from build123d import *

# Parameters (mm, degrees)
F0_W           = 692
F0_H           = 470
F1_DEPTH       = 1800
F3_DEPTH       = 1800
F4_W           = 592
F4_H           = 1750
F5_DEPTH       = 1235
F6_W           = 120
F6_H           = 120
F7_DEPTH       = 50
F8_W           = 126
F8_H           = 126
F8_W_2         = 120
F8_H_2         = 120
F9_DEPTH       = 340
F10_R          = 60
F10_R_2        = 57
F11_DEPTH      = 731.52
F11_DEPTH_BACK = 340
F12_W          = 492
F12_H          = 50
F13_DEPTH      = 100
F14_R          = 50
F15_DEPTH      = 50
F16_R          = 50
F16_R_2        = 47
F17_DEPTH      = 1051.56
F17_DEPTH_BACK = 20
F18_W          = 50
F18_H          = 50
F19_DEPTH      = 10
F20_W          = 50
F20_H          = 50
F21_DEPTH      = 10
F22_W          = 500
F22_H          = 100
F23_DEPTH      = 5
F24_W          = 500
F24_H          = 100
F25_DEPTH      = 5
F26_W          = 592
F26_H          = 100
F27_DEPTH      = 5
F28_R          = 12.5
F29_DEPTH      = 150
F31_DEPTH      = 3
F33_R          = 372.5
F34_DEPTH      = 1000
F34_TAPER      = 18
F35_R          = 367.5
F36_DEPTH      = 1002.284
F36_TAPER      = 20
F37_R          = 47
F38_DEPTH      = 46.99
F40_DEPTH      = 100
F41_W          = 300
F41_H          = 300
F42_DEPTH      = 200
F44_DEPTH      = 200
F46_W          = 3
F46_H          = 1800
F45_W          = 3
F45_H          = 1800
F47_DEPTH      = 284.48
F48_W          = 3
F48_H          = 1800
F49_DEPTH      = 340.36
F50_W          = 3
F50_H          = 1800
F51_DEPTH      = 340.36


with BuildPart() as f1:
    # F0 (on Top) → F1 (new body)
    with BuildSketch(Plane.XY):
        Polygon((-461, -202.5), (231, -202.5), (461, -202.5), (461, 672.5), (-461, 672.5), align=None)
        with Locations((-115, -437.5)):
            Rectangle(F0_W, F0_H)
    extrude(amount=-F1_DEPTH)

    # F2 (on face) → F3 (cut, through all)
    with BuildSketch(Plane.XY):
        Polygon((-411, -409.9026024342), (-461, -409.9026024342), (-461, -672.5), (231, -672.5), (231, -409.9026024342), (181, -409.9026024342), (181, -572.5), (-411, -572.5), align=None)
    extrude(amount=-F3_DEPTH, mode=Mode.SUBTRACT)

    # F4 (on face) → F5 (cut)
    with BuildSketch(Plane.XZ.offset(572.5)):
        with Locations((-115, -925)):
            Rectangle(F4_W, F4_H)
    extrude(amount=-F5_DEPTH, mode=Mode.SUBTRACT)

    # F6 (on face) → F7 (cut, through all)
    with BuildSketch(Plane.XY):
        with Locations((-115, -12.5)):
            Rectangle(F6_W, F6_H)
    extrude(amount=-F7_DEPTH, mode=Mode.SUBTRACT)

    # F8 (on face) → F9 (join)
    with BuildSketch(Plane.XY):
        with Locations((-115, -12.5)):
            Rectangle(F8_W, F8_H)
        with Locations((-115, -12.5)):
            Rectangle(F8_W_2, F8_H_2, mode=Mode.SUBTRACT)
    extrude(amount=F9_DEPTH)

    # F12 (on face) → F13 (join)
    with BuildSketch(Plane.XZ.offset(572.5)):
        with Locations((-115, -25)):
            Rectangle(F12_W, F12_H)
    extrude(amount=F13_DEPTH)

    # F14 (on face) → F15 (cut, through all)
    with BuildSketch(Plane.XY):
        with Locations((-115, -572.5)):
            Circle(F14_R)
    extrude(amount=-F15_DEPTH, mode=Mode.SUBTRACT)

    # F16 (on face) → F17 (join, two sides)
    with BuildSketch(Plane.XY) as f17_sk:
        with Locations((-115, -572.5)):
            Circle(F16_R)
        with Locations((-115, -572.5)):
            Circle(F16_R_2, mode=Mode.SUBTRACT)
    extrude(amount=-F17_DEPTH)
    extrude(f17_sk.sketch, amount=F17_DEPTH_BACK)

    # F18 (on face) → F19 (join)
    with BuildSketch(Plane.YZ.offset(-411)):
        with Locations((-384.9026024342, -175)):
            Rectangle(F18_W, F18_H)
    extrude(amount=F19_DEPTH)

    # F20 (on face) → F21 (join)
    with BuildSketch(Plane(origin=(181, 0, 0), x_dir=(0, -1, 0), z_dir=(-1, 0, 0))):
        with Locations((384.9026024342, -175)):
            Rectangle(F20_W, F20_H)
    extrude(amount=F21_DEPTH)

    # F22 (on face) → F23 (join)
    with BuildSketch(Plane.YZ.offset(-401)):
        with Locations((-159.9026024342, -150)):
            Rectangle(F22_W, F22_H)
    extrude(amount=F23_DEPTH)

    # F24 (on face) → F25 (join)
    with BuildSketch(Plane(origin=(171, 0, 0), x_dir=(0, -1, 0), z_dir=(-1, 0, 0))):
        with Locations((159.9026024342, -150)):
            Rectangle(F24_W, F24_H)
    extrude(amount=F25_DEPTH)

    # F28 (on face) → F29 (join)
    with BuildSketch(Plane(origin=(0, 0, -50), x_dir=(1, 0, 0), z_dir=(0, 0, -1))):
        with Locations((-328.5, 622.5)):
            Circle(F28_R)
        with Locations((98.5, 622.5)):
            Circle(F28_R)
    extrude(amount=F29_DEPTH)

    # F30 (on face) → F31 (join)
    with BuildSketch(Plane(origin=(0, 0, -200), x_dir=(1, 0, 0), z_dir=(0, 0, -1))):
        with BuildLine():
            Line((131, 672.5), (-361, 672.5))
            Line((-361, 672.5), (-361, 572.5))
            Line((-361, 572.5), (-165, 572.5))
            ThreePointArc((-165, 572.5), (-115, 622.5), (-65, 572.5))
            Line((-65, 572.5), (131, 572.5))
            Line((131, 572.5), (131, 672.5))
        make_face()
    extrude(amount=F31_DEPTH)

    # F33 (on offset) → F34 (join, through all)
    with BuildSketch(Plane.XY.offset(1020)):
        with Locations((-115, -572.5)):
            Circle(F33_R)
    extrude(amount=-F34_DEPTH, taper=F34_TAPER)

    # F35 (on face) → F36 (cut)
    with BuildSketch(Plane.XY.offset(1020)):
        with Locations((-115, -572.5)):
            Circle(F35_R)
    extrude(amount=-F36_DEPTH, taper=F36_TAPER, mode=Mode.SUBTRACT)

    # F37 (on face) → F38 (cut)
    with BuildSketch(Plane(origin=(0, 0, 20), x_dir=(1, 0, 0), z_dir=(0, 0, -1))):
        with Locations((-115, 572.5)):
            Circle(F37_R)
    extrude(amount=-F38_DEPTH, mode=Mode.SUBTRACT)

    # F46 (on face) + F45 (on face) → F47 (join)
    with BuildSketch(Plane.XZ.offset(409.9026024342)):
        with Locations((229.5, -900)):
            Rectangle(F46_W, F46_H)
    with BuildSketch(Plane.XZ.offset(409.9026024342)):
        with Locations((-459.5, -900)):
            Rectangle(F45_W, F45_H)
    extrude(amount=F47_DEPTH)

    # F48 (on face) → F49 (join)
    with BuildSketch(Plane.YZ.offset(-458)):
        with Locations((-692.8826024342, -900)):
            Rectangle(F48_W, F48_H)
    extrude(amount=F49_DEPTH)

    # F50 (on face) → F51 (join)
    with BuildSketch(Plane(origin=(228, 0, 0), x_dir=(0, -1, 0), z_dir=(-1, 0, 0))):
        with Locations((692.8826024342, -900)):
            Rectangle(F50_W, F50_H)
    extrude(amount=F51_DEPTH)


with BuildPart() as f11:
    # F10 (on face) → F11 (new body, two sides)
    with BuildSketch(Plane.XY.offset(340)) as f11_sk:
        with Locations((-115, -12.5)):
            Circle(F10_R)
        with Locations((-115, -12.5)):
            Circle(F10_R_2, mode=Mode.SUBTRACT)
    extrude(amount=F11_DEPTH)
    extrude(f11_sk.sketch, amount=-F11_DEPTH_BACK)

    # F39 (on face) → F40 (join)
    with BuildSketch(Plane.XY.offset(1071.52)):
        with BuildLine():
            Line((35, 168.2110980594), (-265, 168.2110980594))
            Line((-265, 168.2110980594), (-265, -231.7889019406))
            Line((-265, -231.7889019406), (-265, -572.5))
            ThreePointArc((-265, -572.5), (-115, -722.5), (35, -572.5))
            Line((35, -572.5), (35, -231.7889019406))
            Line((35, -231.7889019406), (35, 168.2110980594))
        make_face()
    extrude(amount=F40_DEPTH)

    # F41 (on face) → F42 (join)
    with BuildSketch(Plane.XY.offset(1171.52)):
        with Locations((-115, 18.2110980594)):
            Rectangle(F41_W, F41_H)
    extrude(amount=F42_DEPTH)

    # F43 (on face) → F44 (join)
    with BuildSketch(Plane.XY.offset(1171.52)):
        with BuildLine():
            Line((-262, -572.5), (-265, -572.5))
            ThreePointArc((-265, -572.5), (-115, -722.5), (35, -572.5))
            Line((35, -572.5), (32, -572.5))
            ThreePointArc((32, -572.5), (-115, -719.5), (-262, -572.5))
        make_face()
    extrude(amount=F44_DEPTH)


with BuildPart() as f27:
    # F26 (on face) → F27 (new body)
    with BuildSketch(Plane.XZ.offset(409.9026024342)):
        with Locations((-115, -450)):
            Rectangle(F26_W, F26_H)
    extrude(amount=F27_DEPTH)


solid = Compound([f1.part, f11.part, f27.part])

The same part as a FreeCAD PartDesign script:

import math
import FreeCAD as App
import Part
import Sketcher
Q = App.Units.Quantity

doc = App.newDocument("Part")
body = doc.addObject("PartDesign::Body", "Body")

sketch1 = body.newObject("Sketcher::SketchObject", "Sketch")
sketch1.AttachmentSupport = (doc.getObject("XY_Plane"), [""])
sketch1.MapMode = "FlatFace"
sketch1.addGeometry([
    Part.LineSegment(App.Vector(231, -202, 0), App.Vector(461, -202, 0)),
    Part.LineSegment(App.Vector(461, -202, 0), App.Vector(461, 672, 0)),
    Part.LineSegment(App.Vector(461, 672, 0), App.Vector(-461, 672, 0)),
    Part.LineSegment(App.Vector(-461, 672, 0), App.Vector(-461, -672, 0)),
    Part.LineSegment(App.Vector(-461, -672, 0), App.Vector(231, -672, 0)),
    Part.LineSegment(App.Vector(231, -672, 0), App.Vector(231, -202, 0)),
], False)
sketch1.addConstraint([
    Sketcher.Constraint("Coincident", 0, 2, 1, 1),
    Sketcher.Constraint("Coincident", 1, 2, 2, 1),
    Sketcher.Constraint("Coincident", 2, 2, 3, 1),
    Sketcher.Constraint("Coincident", 3, 2, 4, 1),
    Sketcher.Constraint("Coincident", 4, 2, 5, 1),
    Sketcher.Constraint("Coincident", 5, 2, 0, 1),
    Sketcher.Constraint("Horizontal", 0),
    Sketcher.Constraint("Vertical", 1),
    Sketcher.Constraint("Horizontal", 2),
    Sketcher.Constraint("Vertical", 3),
    Sketcher.Constraint("Horizontal", 4),
    Sketcher.Constraint("Vertical", 5),
    Sketcher.Constraint("Symmetric", 1, 2, 3, 2, -1, 1),
    Sketcher.Constraint("DistanceX", 0, 1, 0, 2, Q("230 mm")),
    Sketcher.Constraint("DistanceX", 2, 2, 2, 1, Q("922 mm")),
    Sketcher.Constraint("DistanceY", 1, 1, 1, 2, Q("875 mm")),
    Sketcher.Constraint("DistanceY", 3, 2, 3, 1, Q("1345 mm")),
])
pad1 = body.newObject("PartDesign::Pad", "Pad")
pad1.Profile = sketch1
pad1.Length = 1800
pad1.Reversed = True

sketch2 = body.newObject("Sketcher::SketchObject", "Sketch001")
sketch2.AttachmentSupport = (doc.getObject("XY_Plane"), [""])
sketch2.MapMode = "FlatFace"
sketch2.addGeometry([
    Part.LineSegment(App.Vector(-411, -410, 0), App.Vector(-461, -410, 0)),
    Part.LineSegment(App.Vector(-461, -410, 0), App.Vector(-461, -672, 0)),
    Part.LineSegment(App.Vector(-461, -672, 0), App.Vector(231, -672, 0)),
    Part.LineSegment(App.Vector(231, -672, 0), App.Vector(231, -410, 0)),
    Part.LineSegment(App.Vector(231, -410, 0), App.Vector(181, -410, 0)),
    Part.LineSegment(App.Vector(181, -410, 0), App.Vector(181, -572, 0)),
    Part.LineSegment(App.Vector(181, -572, 0), App.Vector(-411, -572, 0)),
    Part.LineSegment(App.Vector(-411, -572, 0), App.Vector(-411, -410, 0)),
], False)
sketch2.addConstraint([
    Sketcher.Constraint("Coincident", 0, 2, 1, 1),
    Sketcher.Constraint("Coincident", 1, 2, 2, 1),
    Sketcher.Constraint("Coincident", 2, 2, 3, 1),
    Sketcher.Constraint("Coincident", 3, 2, 4, 1),
    Sketcher.Constraint("Coincident", 4, 2, 5, 1),
    Sketcher.Constraint("Coincident", 5, 2, 6, 1),
    Sketcher.Constraint("Coincident", 6, 2, 7, 1),
    Sketcher.Constraint("Coincident", 7, 2, 0, 1),
    Sketcher.Constraint("Horizontal", 0),
    Sketcher.Constraint("Vertical", 1),
    Sketcher.Constraint("Horizontal", 2),
    Sketcher.Constraint("Vertical", 3),
    Sketcher.Constraint("Horizontal", 4),
    Sketcher.Constraint("Vertical", 5),
    Sketcher.Constraint("Horizontal", 6),
    Sketcher.Constraint("Vertical", 7),
    Sketcher.Constraint("Horizontal", 0, 2, 3, 2),
    Sketcher.Constraint("Equal", 0, 4),
    Sketcher.Constraint("DistanceX", 0, 2, 0, 1, Q("50 mm")),
    Sketcher.Constraint("DistanceX", 2, 1, 2, 2, Q("692 mm")),
    Sketcher.Constraint("DistanceX", 0, 2, -1, 1, Q("461 mm")),
    Sketcher.Constraint("DistanceY", 2, 2, 5, 2, Q("100 mm")),
    Sketcher.Constraint("DistanceY", 1, 2, -1, 1, Q("672.5 mm")),
    Sketcher.Constraint("DistanceY", 1, 2, 1, 1, Q("262.597398 mm")),
])
pocket1 = body.newObject("PartDesign::Pocket", "Pocket")
pocket1.Profile = sketch2
pocket1.Type = "ThroughAll"

sketch3 = body.newObject("Sketcher::SketchObject", "Sketch002")
sketch3.AttachmentSupport = (doc.getObject("XZ_Plane"), [""])
sketch3.MapMode = "FlatFace"
sketch3.AttachmentOffset = App.Placement(App.Vector(0, 0, 572.5), App.Rotation())
sketch3.addGeometry([
    Part.LineSegment(App.Vector(-411, -50, 0), App.Vector(-411, -1800, 0)),
    Part.LineSegment(App.Vector(-411, -1800, 0), App.Vector(181, -1800, 0)),
    Part.LineSegment(App.Vector(181, -1800, 0), App.Vector(181, -50, 0)),
    Part.LineSegment(App.Vector(181, -50, 0), App.Vector(-411, -50, 0)),
], False)
sketch3.addConstraint([
    Sketcher.Constraint("Coincident", 0, 2, 1, 1),
    Sketcher.Constraint("Coincident", 1, 2, 2, 1),
    Sketcher.Constraint("Coincident", 2, 2, 3, 1),
    Sketcher.Constraint("Coincident", 3, 2, 0, 1),
    Sketcher.Constraint("Vertical", 0),
    Sketcher.Constraint("Horizontal", 1),
    Sketcher.Constraint("Vertical", 2),
    Sketcher.Constraint("Horizontal", 3),
    Sketcher.Constraint("DistanceX", 1, 1, 1, 2, Q("592 mm")),
    Sketcher.Constraint("DistanceY", 0, 2, 0, 1, Q("1750 mm")),
    Sketcher.Constraint("DistanceX", 0, 2, -1, 1, Q("411 mm")),
    Sketcher.Constraint("DistanceY", 0, 2, -1, 1, Q("1800 mm")),
])
pocket2 = body.newObject("PartDesign::Pocket", "Pocket001")
pocket2.Profile = sketch3
pocket2.Length = 1235

sketch4 = body.newObject("Sketcher::SketchObject", "Sketch003")
sketch4.AttachmentSupport = (doc.getObject("XY_Plane"), [""])
sketch4.MapMode = "FlatFace"
sketch4.addGeometry([
    Part.LineSegment(App.Vector(-175, 48, 0), App.Vector(-175, -72, 0)),
    Part.LineSegment(App.Vector(-175, -72, 0), App.Vector(-55, -72, 0)),
    Part.LineSegment(App.Vector(-55, -72, 0), App.Vector(-55, 48, 0)),
    Part.LineSegment(App.Vector(-55, 48, 0), App.Vector(-175, 48, 0)),
], False)
sketch4.addConstraint([
    Sketcher.Constraint("Coincident", 0, 2, 1, 1),
    Sketcher.Constraint("Coincident", 1, 2, 2, 1),
    Sketcher.Constraint("Coincident", 2, 2, 3, 1),
    Sketcher.Constraint("Coincident", 3, 2, 0, 1),
    Sketcher.Constraint("Vertical", 0),
    Sketcher.Constraint("Horizontal", 1),
    Sketcher.Constraint("Vertical", 2),
    Sketcher.Constraint("Horizontal", 3),
    Sketcher.Constraint("Equal", 3, 0),
    Sketcher.Constraint("DistanceX", 1, 1, 1, 2, Q("120 mm")),
    Sketcher.Constraint("DistanceX", 0, 2, -1, 1, Q("175 mm")),
    Sketcher.Constraint("DistanceY", 0, 2, -1, 1, Q("72.5 mm")),
])
pocket3 = body.newObject("PartDesign::Pocket", "Pocket002")
pocket3.Profile = sketch4
pocket3.Type = "ThroughAll"

sketch5 = body.newObject("Sketcher::SketchObject", "Sketch004")
sketch5.AttachmentSupport = (doc.getObject("XY_Plane"), [""])
sketch5.MapMode = "FlatFace"
sketch5.addGeometry([
    Part.LineSegment(App.Vector(-178, 50, 0), App.Vector(-178, -76, 0)),
    Part.LineSegment(App.Vector(-178, -76, 0), App.Vector(-52, -76, 0)),
    Part.LineSegment(App.Vector(-52, -76, 0), App.Vector(-52, 50, 0)),
    Part.LineSegment(App.Vector(-52, 50, 0), App.Vector(-178, 50, 0)),
    Part.LineSegment(App.Vector(-55, -72, 0), App.Vector(-175, -72, 0)),
    Part.LineSegment(App.Vector(-175, -72, 0), App.Vector(-175, 48, 0)),
    Part.LineSegment(App.Vector(-175, 48, 0), App.Vector(-55, 48, 0)),
    Part.LineSegment(App.Vector(-55, 48, 0), App.Vector(-55, -72, 0)),
], False)
sketch5.addConstraint([
    Sketcher.Constraint("Coincident", 0, 2, 1, 1),
    Sketcher.Constraint("Coincident", 1, 2, 2, 1),
    Sketcher.Constraint("Coincident", 2, 2, 3, 1),
    Sketcher.Constraint("Coincident", 3, 2, 0, 1),
    Sketcher.Constraint("Coincident", 4, 2, 5, 1),
    Sketcher.Constraint("Coincident", 5, 2, 6, 1),
    Sketcher.Constraint("Coincident", 6, 2, 7, 1),
    Sketcher.Constraint("Coincident", 7, 2, 4, 1),
    Sketcher.Constraint("Vertical", 0),
    Sketcher.Constraint("Horizontal", 1),
    Sketcher.Constraint("Vertical", 2),
    Sketcher.Constraint("Horizontal", 3),
    Sketcher.Constraint("Horizontal", 4),
    Sketcher.Constraint("Vertical", 5),
    Sketcher.Constraint("Horizontal", 6),
    Sketcher.Constraint("Vertical", 7),
    Sketcher.Constraint("Equal", 3, 0),
    Sketcher.Constraint("Equal", 6, 5),
    Sketcher.Constraint("DistanceX", 1, 1, 1, 2, Q("126 mm")),
    Sketcher.Constraint("DistanceX", 4, 2, 4, 1, Q("120 mm")),
    Sketcher.Constraint("DistanceX", 0, 2, -1, 1, Q("178 mm")),
    Sketcher.Constraint("DistanceX", 4, 2, -1, 1, Q("175 mm")),
    Sketcher.Constraint("DistanceY", 0, 2, 4, 2, Q("3 mm")),
    Sketcher.Constraint("DistanceY", 0, 2, -1, 1, Q("75.5 mm")),
])
pad2 = body.newObject("PartDesign::Pad", "Pad001")
pad2.Profile = sketch5
pad2.Length = 340

sketch6 = body.newObject("Sketcher::SketchObject", "Sketch005")
sketch6.AttachmentSupport = (doc.getObject("XZ_Plane"), [""])
sketch6.MapMode = "FlatFace"
sketch6.AttachmentOffset = App.Placement(App.Vector(0, 0, 572.5), App.Rotation())
sketch6.addGeometry([
    Part.LineSegment(App.Vector(-361, 0, 0), App.Vector(-361, -50, 0)),
    Part.LineSegment(App.Vector(-361, -50, 0), App.Vector(131, -50, 0)),
    Part.LineSegment(App.Vector(131, -50, 0), App.Vector(131, 0, 0)),
    Part.LineSegment(App.Vector(131, 0, 0), App.Vector(-361, 0, 0)),
], False)
sketch6.addConstraint([
    Sketcher.Constraint("Coincident", 0, 2, 1, 1),
    Sketcher.Constraint("Coincident", 1, 2, 2, 1),
    Sketcher.Constraint("Coincident", 2, 2, 3, 1),
    Sketcher.Constraint("Coincident", 3, 2, 0, 1),
    Sketcher.Constraint("Vertical", 0),
    Sketcher.Constraint("Horizontal", 1),
    Sketcher.Constraint("Vertical", 2),
    Sketcher.Constraint("Horizontal", 3),
    Sketcher.Constraint("PointOnObject", 2, 2, -1),
    Sketcher.Constraint("DistanceX", 1, 1, 1, 2, Q("492 mm")),
    Sketcher.Constraint("DistanceY", 0, 2, 0, 1, Q("50 mm")),
    Sketcher.Constraint("DistanceX", 0, 2, -1, 1, Q("361 mm")),
])
pad3 = body.newObject("PartDesign::Pad", "Pad002")
pad3.Profile = sketch6
pad3.Length = 100

sketch7 = body.newObject("Sketcher::SketchObject", "Sketch006")
sketch7.AttachmentSupport = (doc.getObject("XY_Plane"), [""])
sketch7.MapMode = "FlatFace"
sketch7.addGeometry(Part.Circle(App.Vector(-115, -572, 0), App.Vector(0, 0, 1), 50), False)
sketch7.addConstraint([
    Sketcher.Constraint("Diameter", 0, Q("100 mm")),
    Sketcher.Constraint("DistanceX", 0, 3, -1, 1, Q("115 mm")),
    Sketcher.Constraint("DistanceY", 0, 3, -1, 1, Q("572.5 mm")),
])
pocket4 = body.newObject("PartDesign::Pocket", "Pocket003")
pocket4.Profile = sketch7
pocket4.Type = "ThroughAll"

sketch8 = body.newObject("Sketcher::SketchObject", "Sketch007")
sketch8.AttachmentSupport = (doc.getObject("XY_Plane"), [""])
sketch8.MapMode = "FlatFace"
sketch8.addGeometry([
    Part.Circle(App.Vector(-115, -572, 0), App.Vector(0, 0, 1), 50),
    Part.Circle(App.Vector(-115, -572, 0), App.Vector(0, 0, 1), 47),
], False)
sketch8.addConstraint([
    Sketcher.Constraint("Coincident", 1, 3, 0, 3),
    Sketcher.Constraint("Diameter", 0, Q("100 mm")),
    Sketcher.Constraint("Diameter", 1, Q("94 mm")),
    Sketcher.Constraint("DistanceX", 0, 3, -1, 1, Q("115 mm")),
    Sketcher.Constraint("DistanceY", 0, 3, -1, 1, Q("572.5 mm")),
])
pad4 = body.newObject("PartDesign::Pad", "Pad003")
pad4.Profile = sketch8
pad4.Type = "TwoLengths"
pad4.Length = 1051.56
pad4.Length2 = 20
pad4.Reversed = True

sketch9 = body.newObject("Sketcher::SketchObject", "Sketch008")
sketch9.AttachmentSupport = (doc.getObject("YZ_Plane"), [""])
sketch9.MapMode = "FlatFace"
sketch9.AttachmentOffset = App.Placement(App.Vector(0, 0, -411), App.Rotation())
sketch9.addGeometry([
    Part.LineSegment(App.Vector(-410, -150, 0), App.Vector(-410, -200, 0)),
    Part.LineSegment(App.Vector(-410, -200, 0), App.Vector(-360, -200, 0)),
    Part.LineSegment(App.Vector(-360, -200, 0), App.Vector(-360, -150, 0)),
    Part.LineSegment(App.Vector(-360, -150, 0), App.Vector(-410, -150, 0)),
], False)
sketch9.addConstraint([
    Sketcher.Constraint("Coincident", 0, 2, 1, 1),
    Sketcher.Constraint("Coincident", 1, 2, 2, 1),
    Sketcher.Constraint("Coincident", 2, 2, 3, 1),
    Sketcher.Constraint("Coincident", 3, 2, 0, 1),
    Sketcher.Constraint("Vertical", 0),
    Sketcher.Constraint("Horizontal", 1),
    Sketcher.Constraint("Vertical", 2),
    Sketcher.Constraint("Horizontal", 3),
    Sketcher.Constraint("Equal", 3, 0),
    Sketcher.Constraint("DistanceX", 1, 1, 1, 2, Q("50 mm")),
    Sketcher.Constraint("DistanceY", 0, 2, -1, 1, Q("200 mm")),
    Sketcher.Constraint("DistanceX", 0, 2, -1, 1, Q("409.902602 mm")),
])
pad5 = body.newObject("PartDesign::Pad", "Pad004")
pad5.Profile = sketch9
pad5.Length = 10

sketch10 = body.newObject("Sketcher::SketchObject", "Sketch009")
sketch10.AttachmentSupport = (doc.getObject("YZ_Plane"), [""])
sketch10.MapMode = "FlatFace"
sketch10.AttachmentOffset = App.Placement(App.Vector(0, 0, 181), App.Rotation())
sketch10.addGeometry([
    Part.LineSegment(App.Vector(-360, -150, 0), App.Vector(-360, -200, 0)),
    Part.LineSegment(App.Vector(-360, -200, 0), App.Vector(-410, -200, 0)),
    Part.LineSegment(App.Vector(-410, -200, 0), App.Vector(-410, -150, 0)),
    Part.LineSegment(App.Vector(-410, -150, 0), App.Vector(-360, -150, 0)),
], False)
sketch10.addConstraint([
    Sketcher.Constraint("Coincident", 0, 2, 1, 1),
    Sketcher.Constraint("Coincident", 1, 2, 2, 1),
    Sketcher.Constraint("Coincident", 2, 2, 3, 1),
    Sketcher.Constraint("Coincident", 3, 2, 0, 1),
    Sketcher.Constraint("Vertical", 0),
    Sketcher.Constraint("Horizontal", 1),
    Sketcher.Constraint("Vertical", 2),
    Sketcher.Constraint("Horizontal", 3),
    Sketcher.Constraint("Equal", 3, 0),
    Sketcher.Constraint("DistanceX", 1, 2, 1, 1, Q("50 mm")),
    Sketcher.Constraint("DistanceY", 0, 2, -1, 1, Q("200 mm")),
    Sketcher.Constraint("DistanceX", 0, 2, -1, 1, Q("359.902602 mm")),
])
pad6 = body.newObject("PartDesign::Pad", "Pad005")
pad6.Profile = sketch10
pad6.Length = 10
pad6.Reversed = True

sketch11 = body.newObject("Sketcher::SketchObject", "Sketch010")
sketch11.AttachmentSupport = (doc.getObject("YZ_Plane"), [""])
sketch11.MapMode = "FlatFace"
sketch11.AttachmentOffset = App.Placement(App.Vector(0, 0, -401), App.Rotation())
sketch11.addGeometry([
    Part.LineSegment(App.Vector(-410, -100, 0), App.Vector(-410, -200, 0)),
    Part.LineSegment(App.Vector(-410, -200, 0), App.Vector(90, -200, 0)),
    Part.LineSegment(App.Vector(90, -200, 0), App.Vector(90, -100, 0)),
    Part.LineSegment(App.Vector(90, -100, 0), App.Vector(-410, -100, 0)),
], False)
sketch11.addConstraint([
    Sketcher.Constraint("Coincident", 0, 2, 1, 1),
    Sketcher.Constraint("Coincident", 1, 2, 2, 1),
    Sketcher.Constraint("Coincident", 2, 2, 3, 1),
    Sketcher.Constraint("Coincident", 3, 2, 0, 1),
    Sketcher.Constraint("Vertical", 0),
    Sketcher.Constraint("Horizontal", 1),
    Sketcher.Constraint("Vertical", 2),
    Sketcher.Constraint("Horizontal", 3),
    Sketcher.Constraint("DistanceX", 1, 1, 1, 2, Q("500 mm")),
    Sketcher.Constraint("DistanceY", 0, 2, 0, 1, Q("100 mm")),
    Sketcher.Constraint("DistanceY", 0, 2, -1, 1, Q("200 mm")),
    Sketcher.Constraint("DistanceX", 0, 2, -1, 1, Q("409.902602 mm")),
])
pad7 = body.newObject("PartDesign::Pad", "Pad006")
pad7.Profile = sketch11
pad7.Length = 5

sketch12 = body.newObject("Sketcher::SketchObject", "Sketch011")
sketch12.AttachmentSupport = (doc.getObject("YZ_Plane"), [""])
sketch12.MapMode = "FlatFace"
sketch12.AttachmentOffset = App.Placement(App.Vector(0, 0, 171), App.Rotation())
sketch12.addGeometry([
    Part.LineSegment(App.Vector(90, -100, 0), App.Vector(90, -200, 0)),
    Part.LineSegment(App.Vector(90, -200, 0), App.Vector(-410, -200, 0)),
    Part.LineSegment(App.Vector(-410, -200, 0), App.Vector(-410, -100, 0)),
    Part.LineSegment(App.Vector(-410, -100, 0), App.Vector(90, -100, 0)),
], False)
sketch12.addConstraint([
    Sketcher.Constraint("Coincident", 0, 2, 1, 1),
    Sketcher.Constraint("Coincident", 1, 2, 2, 1),
    Sketcher.Constraint("Coincident", 2, 2, 3, 1),
    Sketcher.Constraint("Coincident", 3, 2, 0, 1),
    Sketcher.Constraint("Vertical", 0),
    Sketcher.Constraint("Horizontal", 1),
    Sketcher.Constraint("Vertical", 2),
    Sketcher.Constraint("Horizontal", 3),
    Sketcher.Constraint("DistanceX", 1, 2, 1, 1, Q("500 mm")),
    Sketcher.Constraint("DistanceY", 0, 2, 0, 1, Q("100 mm")),
    Sketcher.Constraint("DistanceY", 0, 2, -1, 1, Q("200 mm")),
    Sketcher.Constraint("DistanceX", -1, 1, 0, 2, Q("90.097398 mm")),
])
pad8 = body.newObject("PartDesign::Pad", "Pad007")
pad8.Profile = sketch12
pad8.Length = 5
pad8.Reversed = True

sketch13 = body.newObject("Sketcher::SketchObject", "Sketch012")
sketch13.AttachmentSupport = (doc.getObject("XY_Plane"), [""])
sketch13.MapMode = "FlatFace"
sketch13.AttachmentOffset = App.Placement(App.Vector(0, 0, -50), App.Rotation())
sketch13.addGeometry([
    Part.Circle(App.Vector(-328, -622, 0), App.Vector(0, 0, 1), 12),
    Part.Circle(App.Vector(98, -622, 0), App.Vector(0, 0, 1), 12),
], False)
sketch13.addConstraint([
    Sketcher.Constraint("Equal", 0, 1),
    Sketcher.Constraint("Horizontal", 0, 3, 1, 3),
    Sketcher.Constraint("Diameter", 0, Q("25 mm")),
    Sketcher.Constraint("DistanceX", 0, 3, 1, 3, Q("427 mm")),
    Sketcher.Constraint("DistanceX", 0, 3, -1, 1, Q("328.5 mm")),
    Sketcher.Constraint("DistanceY", 0, 3, -1, 1, Q("622.5 mm")),
])
pad9 = body.newObject("PartDesign::Pad", "Pad008")
pad9.Profile = sketch13
pad9.Length = 150
pad9.Reversed = True

sketch14 = body.newObject("Sketcher::SketchObject", "Sketch013")
sketch14.AttachmentSupport = (doc.getObject("XY_Plane"), [""])
sketch14.MapMode = "FlatFace"
sketch14.AttachmentOffset = App.Placement(App.Vector(0, 0, -200), App.Rotation())
sketch14.addGeometry([
    Part.LineSegment(App.Vector(131, -672, 0), App.Vector(-361, -672, 0)),
    Part.LineSegment(App.Vector(-361, -672, 0), App.Vector(-361, -572, 0)),
    Part.LineSegment(App.Vector(-361, -572, 0), App.Vector(-165, -572, 0)),
    Part.ArcOfCircle(Part.Circle(App.Vector(-115, -572, 0), App.Vector(0, 0, 1), 50), math.radians(180), math.radians(360)),
    Part.LineSegment(App.Vector(-65, -572, 0), App.Vector(131, -572, 0)),
    Part.LineSegment(App.Vector(131, -572, 0), App.Vector(131, -672, 0)),
], False)
sketch14.addConstraint([
    Sketcher.Constraint("Coincident", 0, 2, 1, 1),
    Sketcher.Constraint("Coincident", 1, 2, 2, 1),
    Sketcher.Constraint("Coincident", 2, 2, 3, 1),
    Sketcher.Constraint("Coincident", 3, 2, 4, 1),
    Sketcher.Constraint("Coincident", 4, 2, 5, 1),
    Sketcher.Constraint("Coincident", 5, 2, 0, 1),
    Sketcher.Constraint("Horizontal", 0),
    Sketcher.Constraint("Vertical", 1),
    Sketcher.Constraint("Horizontal", 2),
    Sketcher.Constraint("Horizontal", 4),
    Sketcher.Constraint("Vertical", 5),
    Sketcher.Constraint("Horizontal", 3, 3, 1, 2),
    Sketcher.Constraint("Horizontal", 2, 2, 3, 2),
    Sketcher.Constraint("Equal", 2, 4),
    Sketcher.Constraint("Radius", 3, Q("50 mm")),
    Sketcher.Constraint("DistanceX", 0, 2, 0, 1, Q("492 mm")),
    Sketcher.Constraint("DistanceY", 1, 1, 1, 2, Q("100 mm")),
    Sketcher.Constraint("DistanceX", 3, 3, -1, 1, Q("115 mm")),
    Sketcher.Constraint("DistanceY", 3, 3, -1, 1, Q("572.5 mm")),
])
pad10 = body.newObject("PartDesign::Pad", "Pad009")
pad10.Profile = sketch14
pad10.Length = 3
pad10.Reversed = True

sketch15 = body.newObject("Sketcher::SketchObject", "Sketch014")
sketch15.AttachmentSupport = (doc.getObject("XY_Plane"), [""])
sketch15.MapMode = "FlatFace"
sketch15.AttachmentOffset = App.Placement(App.Vector(0, 0, 1020), App.Rotation())
sketch15.addGeometry(Part.Circle(App.Vector(-115, -572, 0), App.Vector(0, 0, 1), 372), False)
sketch15.addConstraint([
    Sketcher.Constraint("Diameter", 0, Q("745 mm")),
    Sketcher.Constraint("DistanceX", 0, 3, -1, 1, Q("115 mm")),
    Sketcher.Constraint("DistanceY", 0, 3, -1, 1, Q("572.5 mm")),
])
pad11 = body.newObject("PartDesign::Pad", "Pad010")
pad11.Profile = sketch15
pad11.Length = 1000
pad11.Reversed = True
pad11.TaperAngle = -18

sketch16 = body.newObject("Sketcher::SketchObject", "Sketch015")
sketch16.AttachmentSupport = (doc.getObject("XY_Plane"), [""])
sketch16.MapMode = "FlatFace"
sketch16.AttachmentOffset = App.Placement(App.Vector(0, 0, 1020), App.Rotation())
sketch16.addGeometry(Part.Circle(App.Vector(-115, -572, 0), App.Vector(0, 0, 1), 368), False)
sketch16.addConstraint([
    Sketcher.Constraint("Diameter", 0, Q("735 mm")),
    Sketcher.Constraint("DistanceX", 0, 3, -1, 1, Q("115 mm")),
    Sketcher.Constraint("DistanceY", 0, 3, -1, 1, Q("572.5 mm")),
])
pocket5 = body.newObject("PartDesign::Pocket", "Pocket004")
pocket5.Profile = sketch16
pocket5.Length = 1002.284
pocket5.TaperAngle = -20

sketch17 = body.newObject("Sketcher::SketchObject", "Sketch016")
sketch17.AttachmentSupport = (doc.getObject("XY_Plane"), [""])
sketch17.MapMode = "FlatFace"
sketch17.AttachmentOffset = App.Placement(App.Vector(0, 0, 20), App.Rotation())
sketch17.addGeometry(Part.Circle(App.Vector(-115, -572, 0), App.Vector(0, 0, 1), 47), False)
sketch17.addConstraint([
    Sketcher.Constraint("Diameter", 0, Q("94 mm")),
    Sketcher.Constraint("DistanceX", 0, 3, -1, 1, Q("115 mm")),
    Sketcher.Constraint("DistanceY", 0, 3, -1, 1, Q("572.5 mm")),
])
pocket6 = body.newObject("PartDesign::Pocket", "Pocket005")
pocket6.Profile = sketch17
pocket6.Length = 46.99
pocket6.Reversed = True

sketch18 = body.newObject("Sketcher::SketchObject", "Sketch017")
sketch18.AttachmentSupport = (doc.getObject("XZ_Plane"), [""])
sketch18.MapMode = "FlatFace"
sketch18.AttachmentOffset = App.Placement(App.Vector(0, 0, 409.902602), App.Rotation())
sketch18.addGeometry([
    Part.LineSegment(App.Vector(228, 0, 0), App.Vector(228, -1800, 0)),
    Part.LineSegment(App.Vector(228, -1800, 0), App.Vector(231, -1800, 0)),
    Part.LineSegment(App.Vector(231, -1800, 0), App.Vector(231, 0, 0)),
    Part.LineSegment(App.Vector(231, 0, 0), App.Vector(228, 0, 0)),
    Part.LineSegment(App.Vector(-461, 0, 0), App.Vector(-461, -1800, 0)),
    Part.LineSegment(App.Vector(-461, -1800, 0), App.Vector(-458, -1800, 0)),
    Part.LineSegment(App.Vector(-458, -1800, 0), App.Vector(-458, 0, 0)),
    Part.LineSegment(App.Vector(-458, 0, 0), App.Vector(-461, 0, 0)),
], False)
sketch18.addConstraint([
    Sketcher.Constraint("Coincident", 0, 2, 1, 1),
    Sketcher.Constraint("Coincident", 1, 2, 2, 1),
    Sketcher.Constraint("Coincident", 2, 2, 3, 1),
    Sketcher.Constraint("Coincident", 3, 2, 0, 1),
    Sketcher.Constraint("Coincident", 4, 2, 5, 1),
    Sketcher.Constraint("Coincident", 5, 2, 6, 1),
    Sketcher.Constraint("Coincident", 6, 2, 7, 1),
    Sketcher.Constraint("Coincident", 7, 2, 4, 1),
    Sketcher.Constraint("Vertical", 0),
    Sketcher.Constraint("Horizontal", 1),
    Sketcher.Constraint("Vertical", 2),
    Sketcher.Constraint("Horizontal", 3),
    Sketcher.Constraint("Vertical", 4),
    Sketcher.Constraint("Horizontal", 5),
    Sketcher.Constraint("Vertical", 6),
    Sketcher.Constraint("Horizontal", 7),
    Sketcher.Constraint("PointOnObject", 2, 2, -1),
    Sketcher.Constraint("PointOnObject", 6, 2, -1),
    Sketcher.Constraint("Horizontal", 1, 2, 4, 2),
    Sketcher.Constraint("Equal", 3, 5),
    Sketcher.Constraint("DistanceX", 1, 1, 1, 2, Q("3 mm")),
    Sketcher.Constraint("DistanceY", 0, 2, 0, 1, Q("1800 mm")),
    Sketcher.Constraint("DistanceX", -1, 1, 0, 2, Q("228 mm")),
    Sketcher.Constraint("DistanceX", 4, 2, -1, 1, Q("461 mm")),
])
pad12 = body.newObject("PartDesign::Pad", "Pad011")
pad12.Profile = sketch18
pad12.Length = 284.48

sketch19 = body.newObject("Sketcher::SketchObject", "Sketch018")
sketch19.AttachmentSupport = (doc.getObject("YZ_Plane"), [""])
sketch19.MapMode = "FlatFace"
sketch19.AttachmentOffset = App.Placement(App.Vector(0, 0, -458), App.Rotation())
sketch19.addGeometry([
    Part.LineSegment(App.Vector(-694.4, 0, 0), App.Vector(-694.4, -1800, 0)),
    Part.LineSegment(App.Vector(-694.4, -1800, 0), App.Vector(-691.4, -1800, 0)),
    Part.LineSegment(App.Vector(-691.4, -1800, 0), App.Vector(-691.4, 0, 0)),
    Part.LineSegment(App.Vector(-691.4, 0, 0), App.Vector(-694.4, 0, 0)),
], False)
sketch19.addConstraint([
    Sketcher.Constraint("Coincident", 0, 2, 1, 1),
    Sketcher.Constraint("Coincident", 1, 2, 2, 1),
    Sketcher.Constraint("Coincident", 2, 2, 3, 1),
    Sketcher.Constraint("Coincident", 3, 2, 0, 1),
    Sketcher.Constraint("Vertical", 0),
    Sketcher.Constraint("Horizontal", 1),
    Sketcher.Constraint("Vertical", 2),
    Sketcher.Constraint("Horizontal", 3),
    Sketcher.Constraint("PointOnObject", 2, 2, -1),
    Sketcher.Constraint("DistanceX", 1, 1, 1, 2, Q("3 mm")),
    Sketcher.Constraint("DistanceY", 0, 2, 0, 1, Q("1800 mm")),
    Sketcher.Constraint("DistanceX", 0, 2, -1, 1, Q("694.382602 mm")),
])
pad13 = body.newObject("PartDesign::Pad", "Pad012")
pad13.Profile = sketch19
pad13.Length = 340.36

sketch20 = body.newObject("Sketcher::SketchObject", "Sketch019")
sketch20.AttachmentSupport = (doc.getObject("YZ_Plane"), [""])
sketch20.MapMode = "FlatFace"
sketch20.AttachmentOffset = App.Placement(App.Vector(0, 0, 228), App.Rotation())
sketch20.addGeometry([
    Part.LineSegment(App.Vector(-691.4, 0, 0), App.Vector(-691.4, -1800, 0)),
    Part.LineSegment(App.Vector(-691.4, -1800, 0), App.Vector(-694.4, -1800, 0)),
    Part.LineSegment(App.Vector(-694.4, -1800, 0), App.Vector(-694.4, 0, 0)),
    Part.LineSegment(App.Vector(-694.4, 0, 0), App.Vector(-691.4, 0, 0)),
], False)
sketch20.addConstraint([
    Sketcher.Constraint("Coincident", 0, 2, 1, 1),
    Sketcher.Constraint("Coincident", 1, 2, 2, 1),
    Sketcher.Constraint("Coincident", 2, 2, 3, 1),
    Sketcher.Constraint("Coincident", 3, 2, 0, 1),
    Sketcher.Constraint("Vertical", 0),
    Sketcher.Constraint("Horizontal", 1),
    Sketcher.Constraint("Vertical", 2),
    Sketcher.Constraint("Horizontal", 3),
    Sketcher.Constraint("PointOnObject", 2, 2, -1),
    Sketcher.Constraint("DistanceX", 1, 2, 1, 1, Q("3 mm")),
    Sketcher.Constraint("DistanceY", 0, 2, 0, 1, Q("1800 mm")),
    Sketcher.Constraint("DistanceX", 0, 2, -1, 1, Q("691.382602 mm")),
])
pad14 = body.newObject("PartDesign::Pad", "Pad013")
pad14.Profile = sketch20
pad14.Length = 340.36
pad14.Reversed = True
body2 = doc.addObject("PartDesign::Body", "Body001")

sketch21 = body2.newObject("Sketcher::SketchObject", "Sketch020")
sketch21.AttachmentSupport = (doc.getObject("XY_Plane001"), [""])
sketch21.MapMode = "FlatFace"
sketch21.AttachmentOffset = App.Placement(App.Vector(0, 0, 340), App.Rotation())
sketch21.addGeometry([
    Part.Circle(App.Vector(-115, -12, 0), App.Vector(0, 0, 1), 60),
    Part.Circle(App.Vector(-115, -12, 0), App.Vector(0, 0, 1), 57),
], False)
sketch21.addConstraint([
    Sketcher.Constraint("Coincident", 1, 3, 0, 3),
    Sketcher.Constraint("Diameter", 0, Q("120 mm")),
    Sketcher.Constraint("Diameter", 1, Q("114 mm")),
    Sketcher.Constraint("DistanceX", 0, 3, -1, 1, Q("115 mm")),
    Sketcher.Constraint("DistanceY", 0, 3, -1, 1, Q("12.5 mm")),
])
pad15 = body2.newObject("PartDesign::Pad", "Pad014")
pad15.Profile = sketch21
pad15.Type = "TwoLengths"
pad15.Length = 731.52
pad15.Length2 = 340

sketch22 = body2.newObject("Sketcher::SketchObject", "Sketch021")
sketch22.AttachmentSupport = (doc.getObject("XY_Plane001"), [""])
sketch22.MapMode = "FlatFace"
sketch22.AttachmentOffset = App.Placement(App.Vector(0, 0, 1071.52), App.Rotation())
sketch22.addGeometry([
    Part.LineSegment(App.Vector(35, 168, 0), App.Vector(-265, 168, 0)),
    Part.LineSegment(App.Vector(-265, 168, 0), App.Vector(-265, -572, 0)),
    Part.ArcOfCircle(Part.Circle(App.Vector(-115, -572, 0), App.Vector(0, 0, 1), 150), math.radians(180), math.radians(360)),
    Part.LineSegment(App.Vector(35, -572, 0), App.Vector(35, 168, 0)),
], False)
sketch22.addConstraint([
    Sketcher.Constraint("Coincident", 0, 2, 1, 1),
    Sketcher.Constraint("Tangent", 1, 2, 2, 1),
    Sketcher.Constraint("Tangent", 2, 2, 3, 1),
    Sketcher.Constraint("Coincident", 3, 2, 0, 1),
    Sketcher.Constraint("Horizontal", 0),
    Sketcher.Constraint("Vertical", 1),
    Sketcher.Constraint("Vertical", 3),
    Sketcher.Constraint("Radius", 2, Q("150 mm")),
    Sketcher.Constraint("DistanceX", 2, 3, -1, 1, Q("115 mm")),
    Sketcher.Constraint("DistanceY", 2, 3, -1, 1, Q("572.5 mm")),
    Sketcher.Constraint("DistanceY", 1, 2, 1, 1, Q("740.711098 mm")),
])
pad16 = body2.newObject("PartDesign::Pad", "Pad015")
pad16.Profile = sketch22
pad16.Length = 100

sketch23 = body2.newObject("Sketcher::SketchObject", "Sketch022")
sketch23.AttachmentSupport = (doc.getObject("XY_Plane001"), [""])
sketch23.MapMode = "FlatFace"
sketch23.AttachmentOffset = App.Placement(App.Vector(0, 0, 1171.52), App.Rotation())
sketch23.addGeometry([
    Part.LineSegment(App.Vector(-265, 168, 0), App.Vector(-265, -132, 0)),
    Part.LineSegment(App.Vector(-265, -132, 0), App.Vector(35, -132, 0)),
    Part.LineSegment(App.Vector(35, -132, 0), App.Vector(35, 168, 0)),
    Part.LineSegment(App.Vector(35, 168, 0), App.Vector(-265, 168, 0)),
], False)
sketch23.addConstraint([
    Sketcher.Constraint("Coincident", 0, 2, 1, 1),
    Sketcher.Constraint("Coincident", 1, 2, 2, 1),
    Sketcher.Constraint("Coincident", 2, 2, 3, 1),
    Sketcher.Constraint("Coincident", 3, 2, 0, 1),
    Sketcher.Constraint("Vertical", 0),
    Sketcher.Constraint("Horizontal", 1),
    Sketcher.Constraint("Vertical", 2),
    Sketcher.Constraint("Horizontal", 3),
    Sketcher.Constraint("Equal", 3, 0),
    Sketcher.Constraint("DistanceX", 1, 1, 1, 2, Q("300 mm")),
    Sketcher.Constraint("DistanceX", 0, 2, -1, 1, Q("265 mm")),
    Sketcher.Constraint("DistanceY", 0, 2, -1, 1, Q("131.788902 mm")),
])
pad17 = body2.newObject("PartDesign::Pad", "Pad016")
pad17.Profile = sketch23
pad17.Length = 200

sketch24 = body2.newObject("Sketcher::SketchObject", "Sketch023")
sketch24.AttachmentSupport = (doc.getObject("XY_Plane001"), [""])
sketch24.MapMode = "FlatFace"
sketch24.AttachmentOffset = App.Placement(App.Vector(0, 0, 1171.52), App.Rotation())
sketch24.addGeometry([
    Part.LineSegment(App.Vector(-262, -572.5, 0), App.Vector(-265, -572.5, 0)),
    Part.ArcOfCircle(Part.Circle(App.Vector(-115, -572.5, 0), App.Vector(0, 0, 1), 150), math.radians(180), math.radians(360)),
    Part.LineSegment(App.Vector(35, -572.5, 0), App.Vector(32, -572.5, 0)),
    Part.ArcOfCircle(Part.Circle(App.Vector(-115, -572.5, 0), App.Vector(0, 0, 1), 147), math.radians(180), math.radians(360)),
], False)
sketch24.addConstraint([
    Sketcher.Constraint("Coincident", 0, 2, 1, 1),
    Sketcher.Constraint("Coincident", 1, 2, 2, 1),
    Sketcher.Constraint("Coincident", 2, 2, 3, 2),
    Sketcher.Constraint("Coincident", 3, 1, 0, 1),
    Sketcher.Constraint("Horizontal", 0),
    Sketcher.Constraint("Horizontal", 2),
    Sketcher.Constraint("Coincident", 3, 3, 1, 3),
    Sketcher.Constraint("Horizontal", 3, 3, 0, 2),
    Sketcher.Constraint("Horizontal", 0, 2, 1, 2),
    Sketcher.Constraint("Radius", 1, Q("150 mm")),
    Sketcher.Constraint("Radius", 3, Q("147 mm")),
    Sketcher.Constraint("DistanceX", 1, 3, -1, 1, Q("115 mm")),
    Sketcher.Constraint("DistanceY", 1, 3, -1, 1, Q("572.5 mm")),
])
pad18 = body2.newObject("PartDesign::Pad", "Pad017")
pad18.Profile = sketch24
pad18.Length = 200
body3 = doc.addObject("PartDesign::Body", "Body002")

sketch25 = body3.newObject("Sketcher::SketchObject", "Sketch024")
sketch25.AttachmentSupport = (doc.getObject("XZ_Plane002"), [""])
sketch25.MapMode = "FlatFace"
sketch25.AttachmentOffset = App.Placement(App.Vector(0, 0, 409.902602), App.Rotation())
sketch25.addGeometry([
    Part.LineSegment(App.Vector(-411, -400, 0), App.Vector(-411, -500, 0)),
    Part.LineSegment(App.Vector(-411, -500, 0), App.Vector(181, -500, 0)),
    Part.LineSegment(App.Vector(181, -500, 0), App.Vector(181, -400, 0)),
    Part.LineSegment(App.Vector(181, -400, 0), App.Vector(-411, -400, 0)),
], False)
sketch25.addConstraint([
    Sketcher.Constraint("Coincident", 0, 2, 1, 1),
    Sketcher.Constraint("Coincident", 1, 2, 2, 1),
    Sketcher.Constraint("Coincident", 2, 2, 3, 1),
    Sketcher.Constraint("Coincident", 3, 2, 0, 1),
    Sketcher.Constraint("Vertical", 0),
    Sketcher.Constraint("Horizontal", 1),
    Sketcher.Constraint("Vertical", 2),
    Sketcher.Constraint("Horizontal", 3),
    Sketcher.Constraint("DistanceX", 1, 1, 1, 2, Q("592 mm")),
    Sketcher.Constraint("DistanceY", 0, 2, 0, 1, Q("100 mm")),
    Sketcher.Constraint("DistanceX", 0, 2, -1, 1, Q("411 mm")),
    Sketcher.Constraint("DistanceY", 0, 2, -1, 1, Q("500 mm")),
])
pad19 = body3.newObject("PartDesign::Pad", "Pad018")
pad19.Profile = sketch25
pad19.Length = 5

doc.recompute()
